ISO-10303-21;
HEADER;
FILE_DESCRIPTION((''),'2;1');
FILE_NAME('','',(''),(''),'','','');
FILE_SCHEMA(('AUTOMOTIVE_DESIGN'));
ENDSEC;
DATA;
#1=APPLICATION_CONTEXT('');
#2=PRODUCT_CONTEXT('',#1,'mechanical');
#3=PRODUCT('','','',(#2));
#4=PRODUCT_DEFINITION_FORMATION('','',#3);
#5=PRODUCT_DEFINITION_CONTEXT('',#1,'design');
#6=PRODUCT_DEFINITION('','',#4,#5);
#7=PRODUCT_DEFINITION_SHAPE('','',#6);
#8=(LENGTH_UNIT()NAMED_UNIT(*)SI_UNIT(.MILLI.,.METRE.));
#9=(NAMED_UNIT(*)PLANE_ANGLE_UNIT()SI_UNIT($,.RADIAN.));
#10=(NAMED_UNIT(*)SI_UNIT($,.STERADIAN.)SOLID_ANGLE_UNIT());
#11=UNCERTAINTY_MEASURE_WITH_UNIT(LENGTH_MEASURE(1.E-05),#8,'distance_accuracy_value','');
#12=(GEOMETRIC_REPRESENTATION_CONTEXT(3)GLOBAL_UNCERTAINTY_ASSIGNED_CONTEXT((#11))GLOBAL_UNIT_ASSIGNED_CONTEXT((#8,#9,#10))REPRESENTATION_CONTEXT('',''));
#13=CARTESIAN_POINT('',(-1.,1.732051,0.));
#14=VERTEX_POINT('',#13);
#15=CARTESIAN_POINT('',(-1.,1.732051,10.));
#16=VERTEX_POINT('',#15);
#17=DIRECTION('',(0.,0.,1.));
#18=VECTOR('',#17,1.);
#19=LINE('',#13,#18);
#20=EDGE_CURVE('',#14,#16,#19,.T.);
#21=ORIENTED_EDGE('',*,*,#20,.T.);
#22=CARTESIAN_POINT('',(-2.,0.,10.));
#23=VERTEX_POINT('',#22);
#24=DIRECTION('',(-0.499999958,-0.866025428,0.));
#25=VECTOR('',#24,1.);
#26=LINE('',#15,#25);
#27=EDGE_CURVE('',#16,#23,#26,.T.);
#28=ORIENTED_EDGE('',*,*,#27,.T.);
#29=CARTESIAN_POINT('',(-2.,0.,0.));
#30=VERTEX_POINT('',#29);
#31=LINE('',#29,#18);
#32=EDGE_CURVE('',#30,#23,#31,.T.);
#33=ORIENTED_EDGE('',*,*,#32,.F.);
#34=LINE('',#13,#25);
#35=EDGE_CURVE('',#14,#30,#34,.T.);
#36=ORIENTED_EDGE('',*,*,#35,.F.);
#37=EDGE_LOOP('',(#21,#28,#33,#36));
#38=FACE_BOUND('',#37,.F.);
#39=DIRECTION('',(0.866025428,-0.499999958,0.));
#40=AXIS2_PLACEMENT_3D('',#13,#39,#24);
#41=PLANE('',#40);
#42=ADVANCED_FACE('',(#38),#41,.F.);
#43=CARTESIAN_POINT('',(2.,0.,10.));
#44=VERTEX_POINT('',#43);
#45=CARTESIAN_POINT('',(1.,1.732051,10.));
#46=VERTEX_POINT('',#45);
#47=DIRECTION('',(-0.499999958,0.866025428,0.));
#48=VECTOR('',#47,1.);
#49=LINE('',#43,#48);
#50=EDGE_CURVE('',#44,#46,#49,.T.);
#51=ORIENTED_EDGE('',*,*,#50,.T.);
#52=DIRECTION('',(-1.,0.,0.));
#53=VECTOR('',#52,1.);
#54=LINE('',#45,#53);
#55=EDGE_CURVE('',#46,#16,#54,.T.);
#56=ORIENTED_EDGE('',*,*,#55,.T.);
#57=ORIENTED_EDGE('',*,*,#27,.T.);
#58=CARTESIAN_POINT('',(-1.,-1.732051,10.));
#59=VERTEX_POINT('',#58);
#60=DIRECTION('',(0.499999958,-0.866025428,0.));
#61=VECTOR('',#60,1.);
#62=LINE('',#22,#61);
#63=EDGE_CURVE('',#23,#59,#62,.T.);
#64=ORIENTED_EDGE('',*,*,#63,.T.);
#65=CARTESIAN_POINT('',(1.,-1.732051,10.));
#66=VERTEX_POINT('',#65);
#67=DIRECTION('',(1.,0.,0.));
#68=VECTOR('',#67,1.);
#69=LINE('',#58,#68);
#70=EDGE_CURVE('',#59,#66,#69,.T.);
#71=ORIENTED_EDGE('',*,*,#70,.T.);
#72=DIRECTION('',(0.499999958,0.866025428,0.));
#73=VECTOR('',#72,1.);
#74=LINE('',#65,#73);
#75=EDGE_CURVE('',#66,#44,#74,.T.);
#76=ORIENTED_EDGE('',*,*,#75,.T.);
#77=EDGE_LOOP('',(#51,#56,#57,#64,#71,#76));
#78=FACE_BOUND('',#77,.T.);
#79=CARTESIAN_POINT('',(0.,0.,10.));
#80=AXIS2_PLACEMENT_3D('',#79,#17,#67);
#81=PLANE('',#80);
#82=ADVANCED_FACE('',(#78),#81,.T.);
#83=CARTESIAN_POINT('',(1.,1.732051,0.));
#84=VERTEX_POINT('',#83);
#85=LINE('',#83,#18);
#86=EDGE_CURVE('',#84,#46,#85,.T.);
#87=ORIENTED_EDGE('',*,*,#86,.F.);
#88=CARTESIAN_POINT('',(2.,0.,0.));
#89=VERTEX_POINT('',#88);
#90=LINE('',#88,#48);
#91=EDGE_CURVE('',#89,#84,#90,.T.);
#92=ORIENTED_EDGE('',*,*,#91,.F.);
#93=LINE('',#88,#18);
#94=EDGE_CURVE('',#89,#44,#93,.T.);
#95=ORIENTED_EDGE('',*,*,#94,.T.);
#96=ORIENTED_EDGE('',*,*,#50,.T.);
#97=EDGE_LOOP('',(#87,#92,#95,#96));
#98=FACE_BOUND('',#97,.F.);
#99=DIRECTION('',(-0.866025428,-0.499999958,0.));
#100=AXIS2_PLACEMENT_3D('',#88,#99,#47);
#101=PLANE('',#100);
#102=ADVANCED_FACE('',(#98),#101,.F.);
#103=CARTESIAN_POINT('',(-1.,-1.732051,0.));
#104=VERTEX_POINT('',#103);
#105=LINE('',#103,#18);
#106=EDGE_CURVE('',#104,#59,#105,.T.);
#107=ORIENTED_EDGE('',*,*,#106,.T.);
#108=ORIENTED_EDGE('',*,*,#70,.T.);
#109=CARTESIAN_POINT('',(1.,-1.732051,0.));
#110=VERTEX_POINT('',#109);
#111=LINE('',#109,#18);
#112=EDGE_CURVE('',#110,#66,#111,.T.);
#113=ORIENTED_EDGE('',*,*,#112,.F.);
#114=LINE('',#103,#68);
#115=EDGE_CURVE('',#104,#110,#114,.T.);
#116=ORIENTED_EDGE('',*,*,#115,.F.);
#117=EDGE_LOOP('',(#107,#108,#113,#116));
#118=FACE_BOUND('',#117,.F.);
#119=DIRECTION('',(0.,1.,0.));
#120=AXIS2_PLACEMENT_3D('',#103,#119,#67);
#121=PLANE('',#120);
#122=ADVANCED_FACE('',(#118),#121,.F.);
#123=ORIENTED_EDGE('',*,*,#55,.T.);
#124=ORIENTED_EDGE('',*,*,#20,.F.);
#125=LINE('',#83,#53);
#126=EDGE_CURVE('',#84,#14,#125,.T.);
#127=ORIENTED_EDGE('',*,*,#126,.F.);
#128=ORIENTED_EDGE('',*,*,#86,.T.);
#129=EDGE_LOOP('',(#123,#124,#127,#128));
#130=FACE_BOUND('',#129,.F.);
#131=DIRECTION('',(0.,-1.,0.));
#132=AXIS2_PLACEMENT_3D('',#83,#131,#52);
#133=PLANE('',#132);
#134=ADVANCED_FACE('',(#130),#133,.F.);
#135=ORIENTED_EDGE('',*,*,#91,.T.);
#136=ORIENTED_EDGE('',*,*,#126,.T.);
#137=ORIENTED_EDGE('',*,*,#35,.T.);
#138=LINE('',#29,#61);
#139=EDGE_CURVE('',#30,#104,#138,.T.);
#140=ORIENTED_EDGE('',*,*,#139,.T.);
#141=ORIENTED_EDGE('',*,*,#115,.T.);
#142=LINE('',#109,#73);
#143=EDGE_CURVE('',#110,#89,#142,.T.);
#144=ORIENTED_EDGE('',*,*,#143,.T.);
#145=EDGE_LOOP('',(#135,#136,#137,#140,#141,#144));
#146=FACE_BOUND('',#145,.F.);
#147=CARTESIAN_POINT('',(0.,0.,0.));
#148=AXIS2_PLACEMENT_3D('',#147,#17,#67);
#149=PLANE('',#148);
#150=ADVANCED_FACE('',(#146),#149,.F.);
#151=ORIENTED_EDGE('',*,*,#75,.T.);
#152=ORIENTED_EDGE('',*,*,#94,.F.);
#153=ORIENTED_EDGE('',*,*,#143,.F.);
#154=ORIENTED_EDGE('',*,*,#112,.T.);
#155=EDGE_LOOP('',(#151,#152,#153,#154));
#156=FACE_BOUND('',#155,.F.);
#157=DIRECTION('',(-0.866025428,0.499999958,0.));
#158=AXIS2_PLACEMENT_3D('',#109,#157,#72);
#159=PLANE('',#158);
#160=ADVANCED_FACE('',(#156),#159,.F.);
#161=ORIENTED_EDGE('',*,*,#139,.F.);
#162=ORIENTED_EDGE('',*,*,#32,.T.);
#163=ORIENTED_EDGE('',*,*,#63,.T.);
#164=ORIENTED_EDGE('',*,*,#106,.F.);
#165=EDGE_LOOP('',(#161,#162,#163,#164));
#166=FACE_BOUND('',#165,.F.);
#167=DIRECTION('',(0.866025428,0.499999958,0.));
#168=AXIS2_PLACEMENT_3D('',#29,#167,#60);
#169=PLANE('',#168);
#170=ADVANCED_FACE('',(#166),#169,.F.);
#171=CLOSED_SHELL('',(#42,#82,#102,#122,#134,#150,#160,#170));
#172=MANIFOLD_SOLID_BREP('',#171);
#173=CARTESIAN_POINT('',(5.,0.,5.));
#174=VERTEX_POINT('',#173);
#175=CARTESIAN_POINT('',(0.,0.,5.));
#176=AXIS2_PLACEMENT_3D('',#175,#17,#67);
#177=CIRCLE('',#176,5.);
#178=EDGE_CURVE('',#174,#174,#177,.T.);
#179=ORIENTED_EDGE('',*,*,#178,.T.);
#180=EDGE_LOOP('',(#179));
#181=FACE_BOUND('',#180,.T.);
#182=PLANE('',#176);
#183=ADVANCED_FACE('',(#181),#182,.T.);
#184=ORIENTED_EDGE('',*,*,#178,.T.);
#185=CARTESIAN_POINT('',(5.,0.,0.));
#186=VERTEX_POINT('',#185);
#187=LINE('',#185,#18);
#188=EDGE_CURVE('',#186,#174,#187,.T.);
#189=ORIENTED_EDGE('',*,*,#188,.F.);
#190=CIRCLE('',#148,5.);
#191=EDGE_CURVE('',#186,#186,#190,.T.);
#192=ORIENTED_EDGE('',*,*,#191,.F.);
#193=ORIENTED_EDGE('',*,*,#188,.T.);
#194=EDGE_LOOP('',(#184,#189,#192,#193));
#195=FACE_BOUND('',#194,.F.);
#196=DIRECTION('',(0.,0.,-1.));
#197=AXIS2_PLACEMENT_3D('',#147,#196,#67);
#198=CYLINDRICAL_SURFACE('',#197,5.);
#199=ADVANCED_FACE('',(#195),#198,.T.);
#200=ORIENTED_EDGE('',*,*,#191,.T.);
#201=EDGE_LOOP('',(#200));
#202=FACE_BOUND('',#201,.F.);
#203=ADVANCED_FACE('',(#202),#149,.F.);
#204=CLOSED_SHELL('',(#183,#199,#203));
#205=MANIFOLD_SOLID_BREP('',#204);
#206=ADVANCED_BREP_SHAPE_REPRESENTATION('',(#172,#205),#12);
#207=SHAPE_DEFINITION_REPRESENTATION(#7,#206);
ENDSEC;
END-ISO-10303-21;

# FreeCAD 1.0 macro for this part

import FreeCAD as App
import Part
import Sketcher

V = App.Vector
Q = App.Units.Quantity


def add_polygon(sketch, points):
    """Adds a closed chain of lines whose ends are joined by coincident constraints."""
    first, n = sketch.GeometryCount, len(points)
    for a, b in zip(points, points[1:] + points[:1]):
        sketch.addGeometry(Part.LineSegment(App.Vector(*a, 0), App.Vector(*b, 0)), False)
    for i in range(n):
        sketch.addConstraint(Sketcher.Constraint("Coincident", first + i, 2, first + (i + 1) % n, 1))

doc = App.newDocument("Part")
params = doc.addObject("Spreadsheet::Sheet", "Params")
for row, (alias, value) in enumerate([
    ("sketch1_diameter", "10 mm"),
    ("pad1_length", "5 mm"),
    ("sketch2_width", "2 mm"),
    ("sketch2_length", "2 mm"),
    ("pad2_length", "10 mm"),
], start=1):
    params.set(f"A{row}", alias)
    params.set(f"B{row}", "=" + value)
    params.setAlias(f"B{row}", alias)

body = doc.addObject("PartDesign::Body", "Body")

# Sketch on XY plane
sketch1 = doc.addObject("Sketcher::SketchObject", "Sketch")
body.addObject(sketch1)
sketch1.AttachmentSupport = (doc.XY_Plane, [""])
sketch1.MapMode = "FlatFace"
sketch1.addGeometry(Part.Circle(V(0, 0, 0), V(0, 0, 1), 5), False)
sketch1.addConstraint([
    Sketcher.Constraint("Coincident", 0, 3, -1, 1),
    Sketcher.Constraint("Diameter", 0, Q("10 mm")),
])
sketch1.setExpression("Constraints[1]", "Params.sketch1_diameter")
pad1 = doc.addObject("PartDesign::Pad", "Pad")
body.addObject(pad1)
pad1.Profile = sketch1
pad1.setExpression("Length", "Params.pad1_length")
body2 = doc.addObject("PartDesign::Body", "Body001")

# Sketch on XY plane
sketch2 = doc.addObject("Sketcher::SketchObject", "Sketch001")
body2.addObject(sketch2)
sketch2.AttachmentSupport = (doc.getObject("XY_Plane001"), [""])
sketch2.MapMode = "FlatFace"
add_polygon(sketch2, [(2, 0), (1, 1.7), (-1, 1.7), (-2, 0), (-1, -1.7), (1, -1.7)])  # lines 0-5
sketch2.addConstraint([
    Sketcher.Constraint("Horizontal", 1),
    Sketcher.Constraint("Horizontal", 4),
    Sketcher.Constraint("Symmetric", 0, 2, 3, 2, -1, 1),
    Sketcher.Constraint("Symmetric", 2, 2, 5, 2, -1, 1),
    Sketcher.Constraint("PointOnObject", 2, 2, -1),
    Sketcher.Constraint("Parallel", 2, 5),
    Sketcher.Constraint("Vertical", 1, 2, 3, 2),
    Sketcher.Constraint("DistanceX", 1, 2, 1, 1, Q("2 mm")),
    Sketcher.Constraint("Angle", 0, Q("119.999997 deg")),
    Sketcher.Constraint("Distance", 0, Q("2 mm")),
])
sketch2.setExpression("Constraints[13]", "Params.sketch2_width")
sketch2.setExpression("Constraints[15]", "Params.sketch2_length")
pad2 = doc.addObject("PartDesign::Pad", "Pad001")
body2.addObject(pad2)
pad2.Profile = sketch2
pad2.setExpression("Length", "Params.pad2_length")

doc.recompute()
